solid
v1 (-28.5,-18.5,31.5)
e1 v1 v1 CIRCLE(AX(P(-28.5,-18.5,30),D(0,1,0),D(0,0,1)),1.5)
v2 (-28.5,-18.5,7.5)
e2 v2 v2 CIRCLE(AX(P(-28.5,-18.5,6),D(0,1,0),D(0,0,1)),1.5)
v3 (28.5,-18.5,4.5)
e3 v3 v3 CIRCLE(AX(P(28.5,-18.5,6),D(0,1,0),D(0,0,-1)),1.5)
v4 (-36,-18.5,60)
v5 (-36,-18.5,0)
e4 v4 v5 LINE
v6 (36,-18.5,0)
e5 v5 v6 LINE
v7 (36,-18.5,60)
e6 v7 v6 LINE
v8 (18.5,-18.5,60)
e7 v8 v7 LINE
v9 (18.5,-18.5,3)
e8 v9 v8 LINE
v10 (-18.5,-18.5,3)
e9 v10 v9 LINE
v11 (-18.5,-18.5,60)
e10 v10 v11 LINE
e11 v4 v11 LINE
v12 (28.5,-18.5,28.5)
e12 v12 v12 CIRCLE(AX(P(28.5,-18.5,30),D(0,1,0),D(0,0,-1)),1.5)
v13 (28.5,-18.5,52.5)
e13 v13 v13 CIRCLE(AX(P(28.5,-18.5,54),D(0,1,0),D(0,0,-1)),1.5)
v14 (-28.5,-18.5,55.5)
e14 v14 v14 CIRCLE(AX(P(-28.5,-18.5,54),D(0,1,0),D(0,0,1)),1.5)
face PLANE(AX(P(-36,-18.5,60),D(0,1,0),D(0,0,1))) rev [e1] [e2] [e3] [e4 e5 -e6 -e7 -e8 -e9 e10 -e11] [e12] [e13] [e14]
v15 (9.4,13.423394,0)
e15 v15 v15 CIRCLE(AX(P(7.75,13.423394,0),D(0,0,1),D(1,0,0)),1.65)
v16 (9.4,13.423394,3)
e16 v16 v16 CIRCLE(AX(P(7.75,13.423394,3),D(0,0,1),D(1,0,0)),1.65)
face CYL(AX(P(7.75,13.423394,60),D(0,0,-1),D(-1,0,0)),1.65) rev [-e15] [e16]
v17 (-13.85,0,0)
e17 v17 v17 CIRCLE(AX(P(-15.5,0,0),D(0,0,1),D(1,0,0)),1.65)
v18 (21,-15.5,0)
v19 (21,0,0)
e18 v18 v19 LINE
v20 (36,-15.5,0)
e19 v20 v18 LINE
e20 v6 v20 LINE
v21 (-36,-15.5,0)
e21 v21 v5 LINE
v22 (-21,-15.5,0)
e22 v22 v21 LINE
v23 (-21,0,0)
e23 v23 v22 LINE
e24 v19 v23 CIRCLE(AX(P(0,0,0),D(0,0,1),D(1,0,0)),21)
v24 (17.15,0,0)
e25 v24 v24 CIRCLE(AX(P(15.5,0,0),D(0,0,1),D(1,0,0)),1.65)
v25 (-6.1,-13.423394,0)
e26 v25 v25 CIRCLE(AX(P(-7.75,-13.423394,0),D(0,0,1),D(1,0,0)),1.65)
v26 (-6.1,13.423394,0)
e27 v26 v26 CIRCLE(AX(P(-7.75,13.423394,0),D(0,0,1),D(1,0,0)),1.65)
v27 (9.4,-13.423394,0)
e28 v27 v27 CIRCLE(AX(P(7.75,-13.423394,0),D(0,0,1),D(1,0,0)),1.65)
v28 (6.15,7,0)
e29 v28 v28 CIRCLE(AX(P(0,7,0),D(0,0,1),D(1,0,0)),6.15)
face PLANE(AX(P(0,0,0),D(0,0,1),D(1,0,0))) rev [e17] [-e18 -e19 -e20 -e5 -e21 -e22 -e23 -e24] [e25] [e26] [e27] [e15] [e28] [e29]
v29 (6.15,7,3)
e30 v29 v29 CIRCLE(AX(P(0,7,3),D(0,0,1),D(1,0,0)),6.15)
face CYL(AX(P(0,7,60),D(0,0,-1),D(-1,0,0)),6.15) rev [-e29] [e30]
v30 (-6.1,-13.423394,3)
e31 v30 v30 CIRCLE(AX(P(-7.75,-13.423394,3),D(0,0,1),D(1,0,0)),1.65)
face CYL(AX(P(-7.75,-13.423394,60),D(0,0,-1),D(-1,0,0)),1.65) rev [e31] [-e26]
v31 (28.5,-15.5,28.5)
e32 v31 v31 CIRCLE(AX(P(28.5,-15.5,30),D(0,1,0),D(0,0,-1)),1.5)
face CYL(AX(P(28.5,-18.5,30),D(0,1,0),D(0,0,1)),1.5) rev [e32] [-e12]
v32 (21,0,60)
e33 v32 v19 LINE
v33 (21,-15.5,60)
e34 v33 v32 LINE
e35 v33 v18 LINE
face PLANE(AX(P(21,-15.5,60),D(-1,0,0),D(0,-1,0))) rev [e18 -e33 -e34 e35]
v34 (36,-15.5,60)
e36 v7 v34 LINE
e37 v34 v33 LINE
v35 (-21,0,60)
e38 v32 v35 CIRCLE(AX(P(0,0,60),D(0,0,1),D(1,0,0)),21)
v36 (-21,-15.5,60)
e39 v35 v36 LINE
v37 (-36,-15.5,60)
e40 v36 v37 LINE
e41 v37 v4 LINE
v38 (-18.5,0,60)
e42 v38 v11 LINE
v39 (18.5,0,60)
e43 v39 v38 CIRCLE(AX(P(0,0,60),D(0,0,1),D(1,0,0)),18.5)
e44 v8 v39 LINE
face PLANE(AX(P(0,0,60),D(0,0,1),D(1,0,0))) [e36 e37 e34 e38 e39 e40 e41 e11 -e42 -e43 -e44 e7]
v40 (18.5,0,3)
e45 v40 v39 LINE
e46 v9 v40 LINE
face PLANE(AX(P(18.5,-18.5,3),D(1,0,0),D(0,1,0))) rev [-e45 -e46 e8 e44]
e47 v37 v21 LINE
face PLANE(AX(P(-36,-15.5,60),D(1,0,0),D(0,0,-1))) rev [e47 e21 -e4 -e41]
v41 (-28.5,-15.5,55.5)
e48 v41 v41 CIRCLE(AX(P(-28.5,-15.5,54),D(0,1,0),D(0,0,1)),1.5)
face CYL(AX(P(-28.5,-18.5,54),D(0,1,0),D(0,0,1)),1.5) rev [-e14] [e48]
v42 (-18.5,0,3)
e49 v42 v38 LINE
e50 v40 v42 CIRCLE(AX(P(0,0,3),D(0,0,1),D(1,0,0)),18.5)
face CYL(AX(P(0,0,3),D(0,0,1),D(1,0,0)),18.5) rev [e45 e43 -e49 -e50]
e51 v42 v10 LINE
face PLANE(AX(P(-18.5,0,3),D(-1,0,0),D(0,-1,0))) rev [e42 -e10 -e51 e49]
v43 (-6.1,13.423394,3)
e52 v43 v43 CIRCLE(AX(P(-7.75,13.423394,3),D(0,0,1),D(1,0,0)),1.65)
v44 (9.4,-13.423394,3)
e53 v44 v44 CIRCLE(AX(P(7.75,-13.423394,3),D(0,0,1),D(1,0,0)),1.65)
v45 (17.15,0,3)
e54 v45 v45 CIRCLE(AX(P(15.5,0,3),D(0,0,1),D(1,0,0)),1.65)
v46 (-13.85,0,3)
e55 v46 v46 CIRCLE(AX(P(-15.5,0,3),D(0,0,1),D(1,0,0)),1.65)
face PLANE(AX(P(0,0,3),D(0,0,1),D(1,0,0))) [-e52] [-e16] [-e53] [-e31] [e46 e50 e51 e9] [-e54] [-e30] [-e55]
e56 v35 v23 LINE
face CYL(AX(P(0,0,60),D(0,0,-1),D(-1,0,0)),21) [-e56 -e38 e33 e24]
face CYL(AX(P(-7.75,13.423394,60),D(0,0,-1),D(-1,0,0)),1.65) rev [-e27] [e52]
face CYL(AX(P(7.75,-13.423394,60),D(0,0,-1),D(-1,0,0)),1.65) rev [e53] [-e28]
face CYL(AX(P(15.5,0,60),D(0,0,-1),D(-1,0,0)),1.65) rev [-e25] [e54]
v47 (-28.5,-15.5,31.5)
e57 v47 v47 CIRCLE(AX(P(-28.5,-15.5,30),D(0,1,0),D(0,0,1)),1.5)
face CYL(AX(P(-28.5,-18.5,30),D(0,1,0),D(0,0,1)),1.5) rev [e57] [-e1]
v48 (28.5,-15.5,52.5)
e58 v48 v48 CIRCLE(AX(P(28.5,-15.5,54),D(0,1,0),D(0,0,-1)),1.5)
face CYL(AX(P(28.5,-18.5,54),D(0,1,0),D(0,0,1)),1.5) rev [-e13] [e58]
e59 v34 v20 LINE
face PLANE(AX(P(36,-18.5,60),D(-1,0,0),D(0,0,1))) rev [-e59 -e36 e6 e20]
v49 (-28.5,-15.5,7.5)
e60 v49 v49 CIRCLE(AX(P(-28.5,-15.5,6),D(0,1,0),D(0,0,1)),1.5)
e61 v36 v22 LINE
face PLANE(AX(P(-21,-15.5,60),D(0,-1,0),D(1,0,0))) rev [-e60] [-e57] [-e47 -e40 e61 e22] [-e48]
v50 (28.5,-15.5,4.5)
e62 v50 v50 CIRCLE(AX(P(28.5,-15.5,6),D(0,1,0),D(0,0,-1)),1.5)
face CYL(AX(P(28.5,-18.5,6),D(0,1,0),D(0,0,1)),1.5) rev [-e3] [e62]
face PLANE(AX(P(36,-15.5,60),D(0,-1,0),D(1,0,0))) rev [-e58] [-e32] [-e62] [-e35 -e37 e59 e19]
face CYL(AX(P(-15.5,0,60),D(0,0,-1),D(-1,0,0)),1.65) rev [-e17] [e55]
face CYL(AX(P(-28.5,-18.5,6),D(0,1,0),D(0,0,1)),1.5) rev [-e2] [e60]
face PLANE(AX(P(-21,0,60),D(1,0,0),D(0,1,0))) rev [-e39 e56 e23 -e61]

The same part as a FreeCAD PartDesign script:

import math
import FreeCAD as App
import Part
import Sketcher
from FreeCAD import Vector

doc = App.newDocument("Part")
params = doc.addObject("Spreadsheet::Sheet", "Params")
for row, (alias, value) in enumerate([
    ("sketch1_radius", "21 mm"),
    ("sketch1_diameter", "3.3 mm"),
    ("sketch1_diameter2", "12.3 mm"),
    ("sketch1_width", "15 mm"),
    ("sketch1_height", "3 mm"),
    ("pad1_length", "60 mm"),
    ("sketch2_radius", "18.5 mm"),
    ("sketch2_height", "18.5 mm"),
    ("pocket1_length", "57 mm"),
    ("sketch3_diameter", "3 mm"),
], start=1):
    params.set(f"A{row}", alias)
    params.set(f"B{row}", "=" + value)
    params.setAlias(f"B{row}", alias)

body = doc.addObject("PartDesign::Body", "Body")

sketch1 = doc.addObject("Sketcher::SketchObject", "Sketch")
body.addObject(sketch1)
sketch1.AttachmentSupport = (doc.XY_Plane, [""])
sketch1.MapMode = "FlatFace"
sketch1.addGeometry(Part.LineSegment(Vector(-21, 0, 0), Vector(-21, -15.5, 0)), False)
sketch1.addGeometry(Part.LineSegment(Vector(-21, -15.5, 0), Vector(-36, -15.5, 0)), False)
sketch1.addGeometry(Part.LineSegment(Vector(-36, -15.5, 0), Vector(-36, -18.5, 0)), False)
sketch1.addGeometry(Part.LineSegment(Vector(-36, -18.5, 0), Vector(36, -18.5, 0)), False)
sketch1.addGeometry(Part.LineSegment(Vector(36, -18.5, 0), Vector(36, -15.5, 0)), False)
sketch1.addGeometry(Part.LineSegment(Vector(36, -15.5, 0), Vector(21, -15.5, 0)), False)
sketch1.addGeometry(Part.LineSegment(Vector(21, -15.5, 0), Vector(21, 0, 0)), False)
sketch1.addGeometry(Part.ArcOfCircle(Part.Circle(Vector(0, 0, 0), Vector(0, 0, 1), 21), math.radians(0), math.radians(180)), False)
sketch1.addGeometry(Part.Circle(Vector(-7.8, -13.4, 0), Vector(0, 0, 1), 1.6), False)
sketch1.addGeometry(Part.Circle(Vector(7.8, -13.4, 0), Vector(0, 0, 1), 1.6), False)
sketch1.addGeometry(Part.Circle(Vector(-15.5, 0, 0), Vector(0, 0, 1), 1.6), False)
sketch1.addGeometry(Part.Circle(Vector(-7.8, 13.4, 0), Vector(0, 0, 1), 1.6), False)
sketch1.addGeometry(Part.Circle(Vector(0, 7, 0), Vector(0, 0, 1), 6.2), False)
sketch1.addGeometry(Part.Circle(Vector(15.5, 0, 0), Vector(0, 0, 1), 1.6), False)
sketch1.addGeometry(Part.Circle(Vector(7.8, 13.4, 0), Vector(0, 0, 1), 1.6), False)
sketch1.addConstraint(Sketcher.Constraint("Coincident", 0, 2, 1, 1))
sketch1.addConstraint(Sketcher.Constraint("Coincident", 1, 2, 2, 1))
sketch1.addConstraint(Sketcher.Constraint("Coincident", 2, 2, 3, 1))
sketch1.addConstraint(Sketcher.Constraint("Coincident", 3, 2, 4, 1))
sketch1.addConstraint(Sketcher.Constraint("Coincident", 4, 2, 5, 1))
sketch1.addConstraint(Sketcher.Constraint("Coincident", 5, 2, 6, 1))
sketch1.addConstraint(Sketcher.Constraint("Tangent", 6, 2, 7, 1))
sketch1.addConstraint(Sketcher.Constraint("Tangent", 7, 2, 0, 1))
sketch1.addConstraint(Sketcher.Constraint("Vertical", 0))
sketch1.addConstraint(Sketcher.Constraint("Horizontal", 1))
sketch1.addConstraint(Sketcher.Constraint("Vertical", 2))
sketch1.addConstraint(Sketcher.Constraint("Horizontal", 3))
sketch1.addConstraint(Sketcher.Constraint("Vertical", 4))
sketch1.addConstraint(Sketcher.Constraint("Horizontal", 5))
sketch1.addConstraint(Sketcher.Constraint("Vertical", 6))
sketch1.addConstraint(Sketcher.Constraint("Coincident", 7, 3, -1, 1))
sketch1.addConstraint(Sketcher.Constraint("Equal", 8, 9))
sketch1.addConstraint(Sketcher.Constraint("Equal", 9, 10))
sketch1.addConstraint(Sketcher.Constraint("Equal", 10, 11))
sketch1.addConstraint(Sketcher.Constraint("Equal", 11, 13))
sketch1.addConstraint(Sketcher.Constraint("Equal", 13, 14))
sketch1.addConstraint(Sketcher.Constraint("Symmetric", 9, 3, 11, 3, -1, 1))
sketch1.addConstraint(Sketcher.Constraint("Symmetric", 10, 3, 13, 3, -1, 1))
sketch1.addConstraint(Sketcher.Constraint("Symmetric", 8, 3, 14, 3, -1, 1))
sketch1.addConstraint(Sketcher.Constraint("Symmetric", 8, 3, 9, 3, -2))
sketch1.addConstraint(Sketcher.Constraint("Symmetric", 1, 2, 4, 2, -2))
sketch1.addConstraint(Sketcher.Constraint("PointOnObject", 10, 3, -1))
sketch1.addConstraint(Sketcher.Constraint("PointOnObject", 12, 3, -2))
sketch1.addConstraint(Sketcher.Constraint("Radius", 7, 21.0))
sketch1.addConstraint(Sketcher.Constraint("Diameter", 8, 3.3))
sketch1.addConstraint(Sketcher.Constraint("Diameter", 12, 12.3))
sketch1.addConstraint(Sketcher.Constraint("DistanceX", 1, 2, 1, 1, 15.0))
sketch1.addConstraint(Sketcher.Constraint("DistanceY", 2, 2, 2, 1, 3.0))
sketch1.addConstraint(Sketcher.Constraint("DistanceY", 0, 2, 0, 1, 15.5))
sketch1.addConstraint(Sketcher.Constraint("DistanceY", -1, 1, 12, 3, 7.0))
sketch1.addConstraint(Sketcher.Constraint("DistanceX", 10, 3, -1, 1, 15.5))
sketch1.addConstraint(Sketcher.Constraint("DistanceX", 8, 3, 9, 3, 15.5))
sketch1.addConstraint(Sketcher.Constraint("DistanceY", 8, 3, -1, 1, 13.423394))
sketch1.setExpression("Constraints[28]", "Params.sketch1_radius")
sketch1.setExpression("Constraints[29]", "Params.sketch1_diameter")
sketch1.setExpression("Constraints[30]", "Params.sketch1_diameter2")
sketch1.setExpression("Constraints[31]", "Params.sketch1_width")
sketch1.setExpression("Constraints[32]", "Params.sketch1_height")
pad1 = doc.addObject("PartDesign::Pad", "Pad")
body.addObject(pad1)
pad1.Profile = sketch1
pad1.setExpression("Length", "Params.pad1_length")

sketch2 = doc.addObject("Sketcher::SketchObject", "Sketch001")
body.addObject(sketch2)
sketch2.AttachmentSupport = (doc.XY_Plane, [""])
sketch2.MapMode = "FlatFace"
sketch2.AttachmentOffset = App.Placement(Vector(0, 0, 60), App.Rotation())
sketch2.addGeometry(Part.LineSegment(Vector(-18, 0, 0), Vector(-18, -18, 0)), False)
sketch2.addGeometry(Part.LineSegment(Vector(-18, -18, 0), Vector(18, -18, 0)), False)
sketch2.addGeometry(Part.LineSegment(Vector(18, -18, 0), Vector(18, 0, 0)), False)
sketch2.addGeometry(Part.ArcOfCircle(Part.Circle(Vector(0, 0, 0), Vector(0, 0, 1), 18), math.radians(0), math.radians(180)), False)
sketch2.addConstraint(Sketcher.Constraint("Coincident", 0, 2, 1, 1))
sketch2.addConstraint(Sketcher.Constraint("Coincident", 1, 2, 2, 1))
sketch2.addConstraint(Sketcher.Constraint("Tangent", 2, 2, 3, 1))
sketch2.addConstraint(Sketcher.Constraint("Tangent", 3, 2, 0, 1))
sketch2.addConstraint(Sketcher.Constraint("Vertical", 0))
sketch2.addConstraint(Sketcher.Constraint("Horizontal", 1))
sketch2.addConstraint(Sketcher.Constraint("Vertical", 2))
sketch2.addConstraint(Sketcher.Constraint("Coincident", 3, 3, -1, 1))
sketch2.addConstraint(Sketcher.Constraint("Radius", 3, 18.5))
sketch2.addConstraint(Sketcher.Constraint("DistanceY", 0, 2, 0, 1, 18.5))
sketch2.setExpression("Constraints[8]", "Params.sketch2_radius")
sketch2.setExpression("Constraints[9]", "Params.sketch2_height")
pocket1 = doc.addObject("PartDesign::Pocket", "Pocket")
body.addObject(pocket1)
pocket1.Profile = sketch2
pocket1.setExpression("Length", "Params.pocket1_length")

sketch3 = doc.addObject("Sketcher::SketchObject", "Sketch002")
body.addObject(sketch3)
sketch3.AttachmentSupport = (doc.XZ_Plane, [""])
sketch3.MapMode = "FlatFace"
sketch3.AttachmentOffset = App.Placement(Vector(0, 0, 15.5), App.Rotation())
sketch3.addGeometry(Part.Circle(Vector(-28.5, 30, 0), Vector(0, 0, 1), 1.5), False)
sketch3.addGeometry(Part.Circle(Vector(-28.5, 6, 0), Vector(0, 0, 1), 1.5), False)
sketch3.addGeometry(Part.Circle(Vector(-28.5, 54, 0), Vector(0, 0, 1), 1.5), False)
sketch3.addGeometry(Part.Circle(Vector(28.5, 54, 0), Vector(0, 0, 1), 1.5), False)
sketch3.addGeometry(Part.Circle(Vector(28.5, 6, 0), Vector(0, 0, 1), 1.5), False)
sketch3.addGeometry(Part.Circle(Vector(28.5, 30, 0), Vector(0, 0, 1), 1.5), False)
sketch3.addConstraint(Sketcher.Constraint("Equal", 0, 1))
sketch3.addConstraint(Sketcher.Constraint("Equal", 1, 2))
sketch3.addConstraint(Sketcher.Constraint("Equal", 2, 3))
sketch3.addConstraint(Sketcher.Constraint("Equal", 3, 4))
sketch3.addConstraint(Sketcher.Constraint("Equal", 4, 5))
sketch3.addConstraint(Sketcher.Constraint("Symmetric", 2, 3, 3, 3, -2))
sketch3.addConstraint(Sketcher.Constraint("Symmetric", 1, 3, 4, 3, -2))
sketch3.addConstraint(Sketcher.Constraint("Symmetric", 0, 3, 5, 3, -2))
sketch3.addConstraint(Sketcher.Constraint("Vertical", 0, 3, 1, 3))
sketch3.addConstraint(Sketcher.Constraint("Vertical", 1, 3, 2, 3))
sketch3.addConstraint(Sketcher.Constraint("Diameter", 0, 3.0))
sketch3.addConstraint(Sketcher.Constraint("DistanceY", -1, 1, 0, 3, 30.0))
sketch3.addConstraint(Sketcher.Constraint("DistanceY", -1, 1, 1, 3, 6.0))
sketch3.addConstraint(Sketcher.Constraint("DistanceY", -1, 1, 2, 3, 54.0))
sketch3.addConstraint(Sketcher.Constraint("DistanceX", 2, 3, 3, 3, 57.0))
sketch3.setExpression("Constraints[10]", "Params.sketch3_diameter")
pocket2 = doc.addObject("PartDesign::Pocket", "Pocket001")
body.addObject(pocket2)
pocket2.Profile = sketch3
pocket2.Type = "ThroughAll"
pocket2.Reversed = True

doc.recompute()
